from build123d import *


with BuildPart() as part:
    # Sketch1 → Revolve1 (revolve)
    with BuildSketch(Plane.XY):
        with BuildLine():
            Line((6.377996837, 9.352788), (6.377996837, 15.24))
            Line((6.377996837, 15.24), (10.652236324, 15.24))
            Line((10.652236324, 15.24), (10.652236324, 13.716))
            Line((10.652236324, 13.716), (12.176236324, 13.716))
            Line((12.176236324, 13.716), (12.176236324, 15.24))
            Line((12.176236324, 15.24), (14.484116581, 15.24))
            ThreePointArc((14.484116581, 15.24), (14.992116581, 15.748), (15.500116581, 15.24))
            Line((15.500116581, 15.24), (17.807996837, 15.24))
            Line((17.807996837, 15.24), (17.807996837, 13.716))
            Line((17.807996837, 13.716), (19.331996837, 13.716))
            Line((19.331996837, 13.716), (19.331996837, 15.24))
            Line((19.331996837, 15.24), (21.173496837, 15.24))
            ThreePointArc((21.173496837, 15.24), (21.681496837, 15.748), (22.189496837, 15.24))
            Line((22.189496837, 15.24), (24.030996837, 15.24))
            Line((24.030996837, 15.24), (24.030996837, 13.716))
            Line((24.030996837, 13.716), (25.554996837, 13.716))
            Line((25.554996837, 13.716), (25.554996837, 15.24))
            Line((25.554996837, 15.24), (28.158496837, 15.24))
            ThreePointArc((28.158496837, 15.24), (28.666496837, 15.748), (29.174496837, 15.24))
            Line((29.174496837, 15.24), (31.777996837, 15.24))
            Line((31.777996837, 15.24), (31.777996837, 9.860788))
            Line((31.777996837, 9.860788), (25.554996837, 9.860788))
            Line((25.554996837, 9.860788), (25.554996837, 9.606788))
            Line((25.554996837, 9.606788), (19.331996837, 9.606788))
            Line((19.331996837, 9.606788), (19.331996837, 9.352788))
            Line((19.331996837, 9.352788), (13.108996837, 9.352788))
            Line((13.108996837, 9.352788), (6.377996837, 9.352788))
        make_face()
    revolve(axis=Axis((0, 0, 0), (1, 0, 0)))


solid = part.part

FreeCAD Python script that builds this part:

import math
import FreeCAD as App
import Part
import Sketcher
Q = App.Units.Quantity

doc = App.newDocument("Part")
body = doc.addObject("PartDesign::Body", "Body")

# Sketch on XY plane
sketch1 = body.newObject("Sketcher::SketchObject", "Sketch")
sketch1.AttachmentSupport = (doc.getObject("XY_Plane"), [""])
sketch1.MapMode = "FlatFace"
sketch1.addGeometry(Part.LineSegment(App.Vector(6.38, 15.24, 0), App.Vector(6.38, 9.35, 0)), False)
sketch1.addGeometry(Part.LineSegment(App.Vector(6.38, 9.35, 0), App.Vector(19.33, 9.35, 0)), False)
sketch1.addGeometry(Part.LineSegment(App.Vector(19.33, 9.35, 0), App.Vector(19.33, 9.61, 0)), False)
sketch1.addGeometry(Part.LineSegment(App.Vector(19.33, 9.61, 0), App.Vector(25.55, 9.61, 0)), False)
sketch1.addGeometry(Part.LineSegment(App.Vector(25.55, 9.61, 0), App.Vector(25.55, 9.86, 0)), False)
sketch1.addGeometry(Part.LineSegment(App.Vector(25.55, 9.86, 0), App.Vector(31.78, 9.86, 0)), False)
sketch1.addGeometry(Part.LineSegment(App.Vector(31.78, 9.86, 0), App.Vector(31.78, 15.24, 0)), False)
sketch1.addGeometry(Part.LineSegment(App.Vector(31.78, 15.24, 0), App.Vector(29.17, 15.24, 0)), False)
sketch1.addGeometry(Part.ArcOfCircle(Part.Circle(App.Vector(28.67, 15.24, 0), App.Vector(0, 0, 1), 0.51), math.radians(0), math.radians(180)), False)
sketch1.addGeometry(Part.LineSegment(App.Vector(28.16, 15.24, 0), App.Vector(25.55, 15.24, 0)), False)
sketch1.addGeometry(Part.LineSegment(App.Vector(25.55, 15.24, 0), App.Vector(25.55, 13.72, 0)), False)
sketch1.addGeometry(Part.LineSegment(App.Vector(25.55, 13.72, 0), App.Vector(24.03, 13.72, 0)), False)
sketch1.addGeometry(Part.LineSegment(App.Vector(24.03, 13.72, 0), App.Vector(24.03, 15.24, 0)), False)
sketch1.addGeometry(Part.LineSegment(App.Vector(24.03, 15.24, 0), App.Vector(22.19, 15.24, 0)), False)
sketch1.addGeometry(Part.ArcOfCircle(Part.Circle(App.Vector(21.68, 15.24, 0), App.Vector(0, 0, 1), 0.51), math.radians(0), math.radians(180)), False)
sketch1.addGeometry(Part.LineSegment(App.Vector(21.17, 15.24, 0), App.Vector(19.33, 15.24, 0)), False)
sketch1.addGeometry(Part.LineSegment(App.Vector(19.33, 15.24, 0), App.Vector(19.33, 13.72, 0)), False)
sketch1.addGeometry(Part.LineSegment(App.Vector(19.33, 13.72, 0), App.Vector(17.81, 13.72, 0)), False)
sketch1.addGeometry(Part.LineSegment(App.Vector(17.81, 13.72, 0), App.Vector(17.81, 15.24, 0)), False)
sketch1.addGeometry(Part.LineSegment(App.Vector(17.81, 15.24, 0), App.Vector(15.5, 15.24, 0)), False)
sketch1.addGeometry(Part.ArcOfCircle(Part.Circle(App.Vector(14.99, 15.24, 0), App.Vector(0, 0, 1), 0.51), math.radians(0), math.radians(180)), False)
sketch1.addGeometry(Part.LineSegment(App.Vector(14.48, 15.24, 0), App.Vector(12.18, 15.24, 0)), False)
sketch1.addGeometry(Part.LineSegment(App.Vector(12.18, 15.24, 0), App.Vector(12.18, 13.72, 0)), False)
sketch1.addGeometry(Part.LineSegment(App.Vector(12.18, 13.72, 0), App.Vector(10.65, 13.72, 0)), False)
sketch1.addGeometry(Part.LineSegment(App.Vector(10.65, 13.72, 0), App.Vector(10.65, 15.24, 0)), False)
sketch1.addGeometry(Part.LineSegment(App.Vector(10.65, 15.24, 0), App.Vector(6.38, 15.24, 0)), False)
sketch1.addConstraint(Sketcher.Constraint("Coincident", 0, 2, 1, 1))
sketch1.addConstraint(Sketcher.Constraint("Coincident", 1, 2, 2, 1))
sketch1.addConstraint(Sketcher.Constraint("Coincident", 2, 2, 3, 1))
sketch1.addConstraint(Sketcher.Constraint("Coincident", 3, 2, 4, 1))
sketch1.addConstraint(Sketcher.Constraint("Coincident", 4, 2, 5, 1))
sketch1.addConstraint(Sketcher.Constraint("Coincident", 5, 2, 6, 1))
sketch1.addConstraint(Sketcher.Constraint("Coincident", 6, 2, 7, 1))
sketch1.addConstraint(Sketcher.Constraint("Coincident", 7, 2, 8, 1))
sketch1.addConstraint(Sketcher.Constraint("Coincident", 8, 2, 9, 1))
sketch1.addConstraint(Sketcher.Constraint("Coincident", 9, 2, 10, 1))
sketch1.addConstraint(Sketcher.Constraint("Coincident", 10, 2, 11, 1))
sketch1.addConstraint(Sketcher.Constraint("Coincident", 11, 2, 12, 1))
sketch1.addConstraint(Sketcher.Constraint("Coincident", 12, 2, 13, 1))
sketch1.addConstraint(Sketcher.Constraint("Coincident", 13, 2, 14, 1))
sketch1.addConstraint(Sketcher.Constraint("Coincident", 14, 2, 15, 1))
sketch1.addConstraint(Sketcher.Constraint("Coincident", 15, 2, 16, 1))
sketch1.addConstraint(Sketcher.Constraint("Coincident", 16, 2, 17, 1))
sketch1.addConstraint(Sketcher.Constraint("Coincident", 17, 2, 18, 1))
sketch1.addConstraint(Sketcher.Constraint("Coincident", 18, 2, 19, 1))
sketch1.addConstraint(Sketcher.Constraint("Coincident", 19, 2, 20, 1))
sketch1.addConstraint(Sketcher.Constraint("Coincident", 20, 2, 21, 1))
sketch1.addConstraint(Sketcher.Constraint("Coincident", 21, 2, 22, 1))
sketch1.addConstraint(Sketcher.Constraint("Coincident", 22, 2, 23, 1))
sketch1.addConstraint(Sketcher.Constraint("Coincident", 23, 2, 24, 1))
sketch1.addConstraint(Sketcher.Constraint("Coincident", 24, 2, 25, 1))
sketch1.addConstraint(Sketcher.Constraint("Coincident", 25, 2, 0, 1))
sketch1.addConstraint(Sketcher.Constraint("Vertical", 0))
sketch1.addConstraint(Sketcher.Constraint("Horizontal", 1))
sketch1.addConstraint(Sketcher.Constraint("Vertical", 2))
sketch1.addConstraint(Sketcher.Constraint("Horizontal", 3))
sketch1.addConstraint(Sketcher.Constraint("Vertical", 4))
sketch1.addConstraint(Sketcher.Constraint("Horizontal", 5))
sketch1.addConstraint(Sketcher.Constraint("Vertical", 6))
sketch1.addConstraint(Sketcher.Constraint("Horizontal", 7))
sketch1.addConstraint(Sketcher.Constraint("Horizontal", 9))
sketch1.addConstraint(Sketcher.Constraint("Vertical", 10))
sketch1.addConstraint(Sketcher.Constraint("Horizontal", 11))
sketch1.addConstraint(Sketcher.Constraint("Vertical", 12))
sketch1.addConstraint(Sketcher.Constraint("Horizontal", 13))
sketch1.addConstraint(Sketcher.Constraint("Horizontal", 15))
sketch1.addConstraint(Sketcher.Constraint("Vertical", 16))
sketch1.addConstraint(Sketcher.Constraint("Horizontal", 17))
sketch1.addConstraint(Sketcher.Constraint("Vertical", 18))
sketch1.addConstraint(Sketcher.Constraint("Horizontal", 19))
sketch1.addConstraint(Sketcher.Constraint("Horizontal", 21))
sketch1.addConstraint(Sketcher.Constraint("Vertical", 22))
sketch1.addConstraint(Sketcher.Constraint("Horizontal", 23))
sketch1.addConstraint(Sketcher.Constraint("Vertical", 24))
sketch1.addConstraint(Sketcher.Constraint("Horizontal", 25))
sketch1.addConstraint(Sketcher.Constraint("Equal", 8, 14))
sketch1.addConstraint(Sketcher.Constraint("Equal", 14, 20))
sketch1.addConstraint(Sketcher.Constraint("Horizontal", 8, 3, 14, 3))
sketch1.addConstraint(Sketcher.Constraint("Horizontal", 14, 3, 20, 3))
sketch1.addConstraint(Sketcher.Constraint("Horizontal", 20, 3, 6, 2))
sketch1.addConstraint(Sketcher.Constraint("Horizontal", 7, 2, 8, 2))
sketch1.addConstraint(Sketcher.Constraint("Horizontal", 9, 2, 12, 2))
sketch1.addConstraint(Sketcher.Constraint("Horizontal", 13, 2, 14, 2))
sketch1.addConstraint(Sketcher.Constraint("Horizontal", 11, 2, 16, 2))
sketch1.addConstraint(Sketcher.Constraint("Horizontal", 15, 2, 18, 2))
sketch1.addConstraint(Sketcher.Constraint("Horizontal", 19, 2, 20, 2))
sketch1.addConstraint(Sketcher.Constraint("Horizontal", 17, 2, 22, 2))
sketch1.addConstraint(Sketcher.Constraint("Horizontal", 21, 2, 24, 2))
sketch1.addConstraint(Sketcher.Constraint("Vertical", 4, 2, 9, 2))
sketch1.addConstraint(Sketcher.Constraint("Vertical", 2, 2, 15, 2))
sketch1.addConstraint(Sketcher.Constraint("Equal", 3, 5))
sketch1.addConstraint(Sketcher.Constraint("Equal", 7, 9))
sketch1.addConstraint(Sketcher.Constraint("Equal", 13, 15))
sketch1.addConstraint(Sketcher.Constraint("Equal", 11, 17))
sketch1.addConstraint(Sketcher.Constraint("Equal", 19, 21))
sketch1.addConstraint(Sketcher.Constraint("Equal", 17, 23))
sketch1.addConstraint(Sketcher.Constraint("Equal", 2, 4))
sketch1.addConstraint(Sketcher.Constraint("Equal", 23, 10))
sketch1.addConstraint(Sketcher.Constraint("Radius", 8, Q("0.02 in")))
sketch1.addConstraint(Sketcher.Constraint("DistanceX", 1, 1, 1, 2, Q("0.51 in")))
sketch1.addConstraint(Sketcher.Constraint("DistanceX", 11, 2, 11, 1, Q("0.06 in")))
sketch1.addConstraint(Sketcher.Constraint("DistanceY", 2, 1, 2, 2, Q("0.01 in")))
sketch1.addConstraint(Sketcher.Constraint("DistanceY", -1, 1, 8, 3, Q("0.6 in")))
sketch1.addConstraint(Sketcher.Constraint("DistanceX", 3, 1, 3, 2, Q("0.245 in")))
sketch1.addConstraint(Sketcher.Constraint("DistanceX", 19, 2, 19, 1, 2.30788))
sketch1.addConstraint(Sketcher.Constraint("DistanceY", 0, 2, 0, 1, 5.887212))
sketch1.addConstraint(Sketcher.Constraint("DistanceX", -1, 1, 8, 3, 28.666497))
revolution = body.newObject("PartDesign::Revolution", "Revolution")
revolution.Profile = sketch1
revolution.ReferenceAxis = (sketch1, ["H_Axis"])
revolution.Angle = 360

doc.recompute()
